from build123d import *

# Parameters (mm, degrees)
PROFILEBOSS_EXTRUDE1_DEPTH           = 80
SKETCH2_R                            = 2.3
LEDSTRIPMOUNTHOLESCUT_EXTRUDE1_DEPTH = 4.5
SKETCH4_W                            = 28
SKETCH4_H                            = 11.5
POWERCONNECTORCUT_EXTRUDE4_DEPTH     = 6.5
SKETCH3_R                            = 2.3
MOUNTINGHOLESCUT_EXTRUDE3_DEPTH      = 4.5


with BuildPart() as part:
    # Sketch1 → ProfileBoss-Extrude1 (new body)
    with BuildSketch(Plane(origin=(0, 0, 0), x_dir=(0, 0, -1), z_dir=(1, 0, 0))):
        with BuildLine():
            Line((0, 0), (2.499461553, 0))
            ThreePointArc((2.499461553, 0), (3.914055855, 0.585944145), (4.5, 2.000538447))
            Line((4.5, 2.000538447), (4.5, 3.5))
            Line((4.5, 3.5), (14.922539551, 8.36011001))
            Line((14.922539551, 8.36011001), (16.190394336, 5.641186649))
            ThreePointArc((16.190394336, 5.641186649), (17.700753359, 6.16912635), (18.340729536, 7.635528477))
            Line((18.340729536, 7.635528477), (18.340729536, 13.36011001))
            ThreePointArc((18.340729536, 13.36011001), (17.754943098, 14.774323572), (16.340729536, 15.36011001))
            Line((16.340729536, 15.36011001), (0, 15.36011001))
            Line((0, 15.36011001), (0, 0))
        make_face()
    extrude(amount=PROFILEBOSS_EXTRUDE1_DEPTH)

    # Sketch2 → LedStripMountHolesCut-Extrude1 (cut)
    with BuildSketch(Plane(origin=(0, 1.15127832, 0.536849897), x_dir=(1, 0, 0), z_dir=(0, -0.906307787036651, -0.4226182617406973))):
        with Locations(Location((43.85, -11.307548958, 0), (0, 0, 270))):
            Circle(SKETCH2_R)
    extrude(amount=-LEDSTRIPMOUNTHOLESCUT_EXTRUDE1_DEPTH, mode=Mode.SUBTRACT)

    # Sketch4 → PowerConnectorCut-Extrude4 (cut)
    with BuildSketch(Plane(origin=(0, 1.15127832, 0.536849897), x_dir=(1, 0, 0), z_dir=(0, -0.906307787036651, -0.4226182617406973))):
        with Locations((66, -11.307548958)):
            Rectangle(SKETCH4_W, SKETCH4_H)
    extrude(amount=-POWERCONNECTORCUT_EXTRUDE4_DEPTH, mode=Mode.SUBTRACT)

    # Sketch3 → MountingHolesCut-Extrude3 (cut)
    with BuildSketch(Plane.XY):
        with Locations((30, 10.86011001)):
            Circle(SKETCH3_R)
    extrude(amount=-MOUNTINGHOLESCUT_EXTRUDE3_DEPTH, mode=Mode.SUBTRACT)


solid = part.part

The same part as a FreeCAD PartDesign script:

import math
import FreeCAD as App
import Part
import Sketcher
from FreeCAD import Vector
Q = App.Units.Quantity

doc = App.newDocument("Part")
params = doc.addObject("Spreadsheet::Sheet", "Params")
for row, (alias, value) in enumerate([
    ("sketch1_radius", "2 mm"),
    ("sketch1_length", "3 mm"),
    ("sketch1_length2", "11.5 mm"),
    ("pad1_length", "80 mm"),
    ("sketch2_diameter", "4.6 mm"),
    ("pocket1_length", "4.5 mm"),
    ("sketch3_width", "28 mm"),
    ("sketch3_height", "11.5 mm"),
    ("pocket2_length", "6.5 mm"),
    ("sketch4_diameter", "4.6 mm"),
    ("pocket3_length", "4.5 mm"),
], start=1):
    params.set(f"A{row}", alias)
    params.set(f"B{row}", "=" + value)
    params.setAlias(f"B{row}", alias)

body = doc.addObject("PartDesign::Body", "Body")

# Sketch on YZ plane
sketch1 = doc.addObject("Sketcher::SketchObject", "Sketch")
body.addObject(sketch1)
sketch1.AttachmentSupport = (doc.YZ_Plane, [""])
sketch1.MapMode = "FlatFace"
sketch1.addGeometry(Part.LineSegment(Vector(0, 0, 0), Vector(0, -2.5, 0)), False)
sketch1.addGeometry(Part.ArcOfCircle(Part.Circle(Vector(2, -2.5, 0), Vector(0, 0, 1), 2), math.radians(180), math.radians(270)), False)
sketch1.addGeometry(Part.LineSegment(Vector(2, -4.5, 0), Vector(3.5, -4.5, 0)), False)
sketch1.addGeometry(Part.LineSegment(Vector(3.5, -4.5, 0), Vector(8.4, -14.9, 0)), False)
sketch1.addGeometry(Part.LineSegment(Vector(8.4, -14.9, 0), Vector(5.6, -16.2, 0)), False)
sketch1.addGeometry(Part.ArcOfCircle(Part.Circle(Vector(7.6, -16.3, 0), Vector(0, 0, 1), 2), math.radians(176), math.radians(270)), False)
sketch1.addGeometry(Part.LineSegment(Vector(7.6, -18.3, 0), Vector(13.4, -18.3, 0)), False)
sketch1.addGeometry(Part.ArcOfCircle(Part.Circle(Vector(13.4, -16.3, 0), Vector(0, 0, 1), 2), math.radians(-90), math.radians(0)), False)
sketch1.addGeometry(Part.LineSegment(Vector(15.4, -16.3, 0), Vector(15.4, 0, 0)), False)
sketch1.addGeometry(Part.LineSegment(Vector(15.4, 0, 0), Vector(0, 0, 0)), False)
sketch1.addConstraint(Sketcher.Constraint("Tangent", 0, 2, 1, 1))
sketch1.addConstraint(Sketcher.Constraint("Tangent", 1, 2, 2, 1))
sketch1.addConstraint(Sketcher.Constraint("Coincident", 2, 2, 3, 1))
sketch1.addConstraint(Sketcher.Constraint("Coincident", 3, 2, 4, 1))
sketch1.addConstraint(Sketcher.Constraint("Coincident", 4, 2, 5, 1))
sketch1.addConstraint(Sketcher.Constraint("Tangent", 5, 2, 6, 1))
sketch1.addConstraint(Sketcher.Constraint("Tangent", 6, 2, 7, 1))
sketch1.addConstraint(Sketcher.Constraint("Tangent", 7, 2, 8, 1))
sketch1.addConstraint(Sketcher.Constraint("Coincident", 8, 2, 9, 1))
sketch1.addConstraint(Sketcher.Constraint("Coincident", 9, 2, 0, 1))
sketch1.addConstraint(Sketcher.Constraint("Vertical", 0))
sketch1.addConstraint(Sketcher.Constraint("Horizontal", 2))
sketch1.addConstraint(Sketcher.Constraint("Horizontal", 6))
sketch1.addConstraint(Sketcher.Constraint("Vertical", 8))
sketch1.addConstraint(Sketcher.Constraint("Horizontal", 9))
sketch1.addConstraint(Sketcher.Constraint("Coincident", 9, 2, -1, 1))
sketch1.addConstraint(Sketcher.Constraint("Equal", 5, 7))
sketch1.addConstraint(Sketcher.Constraint("Perpendicular", 3, 4))
sketch1.addConstraint(Sketcher.Constraint("Radius", 5, 2.0))
sketch1.addConstraint(Sketcher.Constraint("Angle", 3, Q("-65 deg")))
sketch1.addConstraint(Sketcher.Constraint("Distance", 4, 3.0))
sketch1.addConstraint(Sketcher.Constraint("DistanceX", 3, 2, 7, 3, 5.0))
sketch1.addConstraint(Sketcher.Constraint("Distance", 3, 11.5))
sketch1.addConstraint(Sketcher.Constraint("DistanceY", 1, 2, -1, 1, 4.5))
sketch1.addConstraint(Sketcher.Constraint("DistanceX", -1, 1, 2, 2, 3.5))
sketch1.addConstraint(Sketcher.Constraint("Radius", 1, 2.000538))
sketch1.addConstraint(Sketcher.Constraint("DistanceX", 6, 1, 6, 2, 5.724582))
sketch1.setExpression("Constraints[18]", "Params.sketch1_radius")
sketch1.setExpression("Constraints[20]", "Params.sketch1_length")
sketch1.setExpression("Constraints[22]", "Params.sketch1_length2")
pad1 = doc.addObject("PartDesign::Pad", "Pad")
body.addObject(pad1)
pad1.Profile = sketch1
pad1.setExpression("Length", "Params.pad1_length")

# Sketch on an angled plane
sketch2 = doc.addObject("Sketcher::SketchObject", "Sketch001")
body.addObject(sketch2)
sketch2.Placement = App.Placement(Vector(0, 1.151278, 0.53685), App.Rotation(Vector(1, 0, 0), Vector(0, -0.422618262, 0.906307787), Vector(0, -0.906307787, -0.422618262), "ZXY"))
sketch2.addGeometry(Part.Circle(Vector(43.9, -11.3, 0), Vector(0, 0, 1), 2.3), False)
sketch2.addConstraint(Sketcher.Constraint("Diameter", 0, 4.6))
sketch2.addConstraint(Sketcher.Constraint("DistanceX", -1, 1, 0, 3, 43.85))
sketch2.addConstraint(Sketcher.Constraint("DistanceY", 0, 3, -1, 1, 11.307549))
sketch2.setExpression("Constraints[0]", "Params.sketch2_diameter")
pocket1 = doc.addObject("PartDesign::Pocket", "Pocket")
body.addObject(pocket1)
pocket1.Profile = sketch2
pocket1.setExpression("Length", "Params.pocket1_length")

# Sketch on an angled plane
sketch3 = doc.addObject("Sketcher::SketchObject", "Sketch002")
body.addObject(sketch3)
sketch3.Placement = App.Placement(Vector(0, 1.151278, 0.53685), App.Rotation(Vector(1, 0, 0), Vector(0, -0.422618262, 0.906307787), Vector(0, -0.906307787, -0.422618262), "ZXY"))
sketch3.addGeometry(Part.LineSegment(Vector(52, -6, 0), Vector(52, -17, 0)), False)
sketch3.addGeometry(Part.LineSegment(Vector(52, -17, 0), Vector(80, -17, 0)), False)
sketch3.addGeometry(Part.LineSegment(Vector(80, -17, 0), Vector(80, -6, 0)), False)
sketch3.addGeometry(Part.LineSegment(Vector(80, -6, 0), Vector(52, -6, 0)), False)
sketch3.addConstraint(Sketcher.Constraint("Coincident", 0, 2, 1, 1))
sketch3.addConstraint(Sketcher.Constraint("Coincident", 1, 2, 2, 1))
sketch3.addConstraint(Sketcher.Constraint("Coincident", 2, 2, 3, 1))
sketch3.addConstraint(Sketcher.Constraint("Coincident", 3, 2, 0, 1))
sketch3.addConstraint(Sketcher.Constraint("Vertical", 0))
sketch3.addConstraint(Sketcher.Constraint("Horizontal", 1))
sketch3.addConstraint(Sketcher.Constraint("Vertical", 2))
sketch3.addConstraint(Sketcher.Constraint("Horizontal", 3))
sketch3.addConstraint(Sketcher.Constraint("DistanceX", 1, 1, 1, 2, 28.0))
sketch3.addConstraint(Sketcher.Constraint("DistanceY", 0, 2, 0, 1, 11.5))
sketch3.addConstraint(Sketcher.Constraint("DistanceX", -1, 1, 0, 2, 52.0))
sketch3.addConstraint(Sketcher.Constraint("DistanceY", 0, 2, -1, 1, 17.057549))
sketch3.setExpression("Constraints[8]", "Params.sketch3_width")
sketch3.setExpression("Constraints[9]", "Params.sketch3_height")
pocket2 = doc.addObject("PartDesign::Pocket", "Pocket001")
body.addObject(pocket2)
pocket2.Profile = sketch3
pocket2.setExpression("Length", "Params.pocket2_length")

# Sketch on XY plane
sketch4 = doc.addObject("Sketcher::SketchObject", "Sketch003")
body.addObject(sketch4)
sketch4.AttachmentSupport = (doc.XY_Plane, [""])
sketch4.MapMode = "FlatFace"
sketch4.addGeometry(Part.Circle(Vector(30, 10.9, 0), Vector(0, 0, 1), 2.3), False)
sketch4.addConstraint(Sketcher.Constraint("Diameter", 0, 4.6))
sketch4.addConstraint(Sketcher.Constraint("DistanceX", -1, 1, 0, 3, 30.0))
sketch4.addConstraint(Sketcher.Constraint("DistanceY", -1, 1, 0, 3, 10.86011))
sketch4.setExpression("Constraints[0]", "Params.sketch4_diameter")
pocket3 = doc.addObject("PartDesign::Pocket", "Pocket002")
body.addObject(pocket3)
pocket3.Profile = sketch4
pocket3.setExpression("Length", "Params.pocket3_length")

doc.recompute()
